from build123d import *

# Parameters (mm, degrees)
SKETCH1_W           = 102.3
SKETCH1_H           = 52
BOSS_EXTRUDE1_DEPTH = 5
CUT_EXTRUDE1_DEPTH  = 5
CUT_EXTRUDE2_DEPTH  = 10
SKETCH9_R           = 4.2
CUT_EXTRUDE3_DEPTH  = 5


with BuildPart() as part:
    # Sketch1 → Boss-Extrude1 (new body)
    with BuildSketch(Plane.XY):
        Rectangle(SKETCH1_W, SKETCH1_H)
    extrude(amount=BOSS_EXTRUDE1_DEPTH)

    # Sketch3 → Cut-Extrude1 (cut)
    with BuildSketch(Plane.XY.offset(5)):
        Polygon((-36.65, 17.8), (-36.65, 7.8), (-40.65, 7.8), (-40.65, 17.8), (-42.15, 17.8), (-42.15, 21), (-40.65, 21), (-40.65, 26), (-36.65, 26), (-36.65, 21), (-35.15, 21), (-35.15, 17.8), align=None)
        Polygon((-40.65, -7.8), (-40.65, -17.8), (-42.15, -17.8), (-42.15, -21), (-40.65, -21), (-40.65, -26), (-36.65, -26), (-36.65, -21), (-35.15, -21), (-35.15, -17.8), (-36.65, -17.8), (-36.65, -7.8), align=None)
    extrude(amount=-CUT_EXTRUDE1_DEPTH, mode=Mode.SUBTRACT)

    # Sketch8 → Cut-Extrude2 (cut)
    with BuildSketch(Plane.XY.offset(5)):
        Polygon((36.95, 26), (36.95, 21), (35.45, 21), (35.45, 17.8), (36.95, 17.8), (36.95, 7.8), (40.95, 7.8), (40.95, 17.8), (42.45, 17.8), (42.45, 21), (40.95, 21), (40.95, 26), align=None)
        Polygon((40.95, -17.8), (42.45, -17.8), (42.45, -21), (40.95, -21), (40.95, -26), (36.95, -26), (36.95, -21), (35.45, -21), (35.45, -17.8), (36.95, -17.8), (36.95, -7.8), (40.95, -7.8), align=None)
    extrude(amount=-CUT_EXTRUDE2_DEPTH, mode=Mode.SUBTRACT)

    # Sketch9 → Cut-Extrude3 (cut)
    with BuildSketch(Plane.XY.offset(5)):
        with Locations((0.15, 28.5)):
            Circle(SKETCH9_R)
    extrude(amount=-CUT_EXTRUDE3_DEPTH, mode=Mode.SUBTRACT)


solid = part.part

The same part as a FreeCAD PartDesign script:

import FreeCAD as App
import Part
import Sketcher

V = App.Vector


def add_polygon(sketch, points):
    """Adds a closed chain of lines whose ends are joined by coincident constraints."""
    first, n = sketch.GeometryCount, len(points)
    for a, b in zip(points, points[1:] + points[:1]):
        sketch.addGeometry(Part.LineSegment(App.Vector(*a, 0), App.Vector(*b, 0)), False)
    for i in range(n):
        sketch.addConstraint(Sketcher.Constraint("Coincident", first + i, 2, first + (i + 1) % n, 1))

doc = App.newDocument("Part")
body = doc.addObject("PartDesign::Body", "Body")

# Sketch on XY plane
sketch1 = body.newObject("Sketcher::SketchObject", "Sketch")
sketch1.AttachmentSupport = (doc.getObject("XY_Plane"), [""])
sketch1.MapMode = "FlatFace"
add_polygon(sketch1, [(-51, 26), (-51, -26), (51, -26), (51, 26)])  # lines 0-3
sketch1.addConstraint([
    Sketcher.Constraint("Vertical", 0),
    Sketcher.Constraint("Horizontal", 1),
    Sketcher.Constraint("Vertical", 2),
    Sketcher.Constraint("Horizontal", 3),
    Sketcher.Constraint("Symmetric", 0, 2, 2, 2, -1, 1),
    Sketcher.Constraint("DistanceY", 0, 2, 0, 1, 52.0),
    Sketcher.Constraint("DistanceX", 1, 1, 1, 2, 102.3),
])
pad1 = body.newObject("PartDesign::Pad", "Pad")
pad1.Profile = sketch1
pad1.Length = 5

# Sketch on XY plane
sketch2 = body.newObject("Sketcher::SketchObject", "Sketch001")
sketch2.AttachmentSupport = (doc.getObject("XY_Plane"), [""])
sketch2.MapMode = "FlatFace"
sketch2.AttachmentOffset = App.Placement(V(0, 0, 5), App.Rotation())
add_polygon(sketch2, [(-36.6, 7.8), (-36.6, 17.8), (-35.1, 17.8), (-35.1, 21), (-36.6, 21), (-36.6, 26), (-40.6, 26), (-40.6, 21), (-42.1, 21), (-42.1, 17.8), (-40.6, 17.8), (-40.6, 7.8)])  # lines 0-11
add_polygon(sketch2, [(-40.6, -7.8), (-40.6, -17.8), (-42.1, -17.8), (-42.1, -21), (-40.6, -21), (-40.6, -26), (-36.6, -26), (-36.6, -21), (-35.1, -21), (-35.1, -17.8), (-36.6, -17.8), (-36.6, -7.8)])  # lines 12-23
sketch2.addConstraint([
    Sketcher.Constraint("Vertical", 0),
    Sketcher.Constraint("Horizontal", 1),
    Sketcher.Constraint("Vertical", 2),
    Sketcher.Constraint("Horizontal", 3),
    Sketcher.Constraint("Vertical", 4),
    Sketcher.Constraint("Horizontal", 5),
    Sketcher.Constraint("Vertical", 6),
    Sketcher.Constraint("Horizontal", 7),
    Sketcher.Constraint("Vertical", 8),
    Sketcher.Constraint("Horizontal", 9),
    Sketcher.Constraint("Vertical", 10),
    Sketcher.Constraint("Horizontal", 11),
    Sketcher.Constraint("Vertical", 12),
    Sketcher.Constraint("Horizontal", 13),
    Sketcher.Constraint("Vertical", 14),
    Sketcher.Constraint("Horizontal", 15),
    Sketcher.Constraint("Vertical", 16),
    Sketcher.Constraint("Horizontal", 17),
    Sketcher.Constraint("Vertical", 18),
    Sketcher.Constraint("Horizontal", 19),
    Sketcher.Constraint("Vertical", 20),
    Sketcher.Constraint("Horizontal", 21),
    Sketcher.Constraint("Vertical", 22),
    Sketcher.Constraint("Horizontal", 23),
    Sketcher.Constraint("Symmetric", 9, 2, 12, 2, -1),
    Sketcher.Constraint("Symmetric", 7, 2, 14, 2, -1),
    Sketcher.Constraint("Symmetric", 5, 2, 16, 2, -1),
    Sketcher.Constraint("Symmetric", 3, 2, 18, 2, -1),
    Sketcher.Constraint("Symmetric", 1, 2, 20, 2, -1),
    Sketcher.Constraint("Symmetric", 11, 2, 22, 2, -1),
    Sketcher.Constraint("Horizontal", 3, 2, 6, 2),
    Sketcher.Constraint("Horizontal", 1, 2, 8, 2),
    Sketcher.Constraint("Vertical", 0, 2, 3, 2),
    Sketcher.Constraint("Vertical", 6, 2, 9, 2),
    Sketcher.Constraint("Equal", 3, 7),
    Sketcher.Constraint("DistanceX", 5, 2, 5, 1, 4.0),
    Sketcher.Constraint("DistanceY", 0, 1, 0, 2, 10.0),
    Sketcher.Constraint("DistanceY", 4, 1, 4, 2, 5.0),
    Sketcher.Constraint("DistanceX", 1, 1, 1, 2, 1.5),
    Sketcher.Constraint("DistanceY", 2, 1, 2, 2, 3.2),
    Sketcher.Constraint("DistanceY", -1, 1, 2, 2, 21.0),
    Sketcher.Constraint("DistanceX", 0, 2, -1, 1, 36.65),
])
pocket1 = body.newObject("PartDesign::Pocket", "Pocket")
pocket1.Profile = sketch2
pocket1.Length = 5

# Sketch on XY plane
sketch3 = body.newObject("Sketcher::SketchObject", "Sketch002")
sketch3.AttachmentSupport = (doc.getObject("XY_Plane"), [""])
sketch3.MapMode = "FlatFace"
sketch3.AttachmentOffset = App.Placement(V(0, 0, 5), App.Rotation())
add_polygon(sketch3, [(37, 26), (37, 21), (35.5, 21), (35.5, 17.8), (37, 17.8), (37, 7.8), (41, 7.8), (41, 17.8), (42.5, 17.8), (42.5, 21), (41, 21), (41, 26)])  # lines 0-11
add_polygon(sketch3, [(42.5, -17.8), (41, -17.8), (41, -7.8), (37, -7.8), (37, -17.8), (35.5, -17.8), (35.5, -21), (37, -21), (37, -26), (41, -26), (41, -21), (42.5, -21)])  # lines 12-23
sketch3.addConstraint([
    Sketcher.Constraint("Vertical", 0),
    Sketcher.Constraint("Horizontal", 1),
    Sketcher.Constraint("Vertical", 2),
    Sketcher.Constraint("Horizontal", 3),
    Sketcher.Constraint("Vertical", 4),
    Sketcher.Constraint("Horizontal", 5),
    Sketcher.Constraint("Vertical", 6),
    Sketcher.Constraint("Horizontal", 7),
    Sketcher.Constraint("Vertical", 8),
    Sketcher.Constraint("Horizontal", 9),
    Sketcher.Constraint("Vertical", 10),
    Sketcher.Constraint("Horizontal", 11),
    Sketcher.Constraint("Horizontal", 12),
    Sketcher.Constraint("Vertical", 13),
    Sketcher.Constraint("Horizontal", 14),
    Sketcher.Constraint("Vertical", 15),
    Sketcher.Constraint("Horizontal", 16),
    Sketcher.Constraint("Vertical", 17),
    Sketcher.Constraint("Horizontal", 18),
    Sketcher.Constraint("Vertical", 19),
    Sketcher.Constraint("Horizontal", 20),
    Sketcher.Constraint("Vertical", 21),
    Sketcher.Constraint("Horizontal", 22),
    Sketcher.Constraint("Vertical", 23),
    Sketcher.Constraint("Symmetric", 6, 2, 12, 2, -1),
    Sketcher.Constraint("Symmetric", 4, 2, 14, 2, -1),
    Sketcher.Constraint("Symmetric", 2, 2, 16, 2, -1),
    Sketcher.Constraint("Symmetric", 0, 2, 18, 2, -1),
    Sketcher.Constraint("Symmetric", 10, 2, 20, 2, -1),
    Sketcher.Constraint("Symmetric", 8, 2, 22, 2, -1),
    Sketcher.Constraint("Horizontal", 3, 2, 6, 2),
    Sketcher.Constraint("Horizontal", 1, 2, 8, 2),
    Sketcher.Constraint("Vertical", 0, 2, 3, 2),
    Sketcher.Constraint("Vertical", 6, 2, 9, 2),
    Sketcher.Constraint("Equal", 3, 7),
    Sketcher.Constraint("DistanceX", 5, 1, 5, 2, 4.0),
    Sketcher.Constraint("DistanceY", 0, 2, 0, 1, 5.0),
    Sketcher.Constraint("DistanceY", 4, 2, 4, 1, 10.0),
    Sketcher.Constraint("DistanceX", 1, 2, 1, 1, 1.5),
    Sketcher.Constraint("DistanceY", 2, 2, 2, 1, 3.2),
    Sketcher.Constraint("DistanceY", -1, 1, 0, 2, 21.0),
    Sketcher.Constraint("DistanceX", -1, 1, 0, 2, 36.95),
])
pocket2 = body.newObject("PartDesign::Pocket", "Pocket001")
pocket2.Profile = sketch3
pocket2.Length = 10

# Sketch on XY plane
sketch4 = body.newObject("Sketcher::SketchObject", "Sketch003")
sketch4.AttachmentSupport = (doc.getObject("XY_Plane"), [""])
sketch4.MapMode = "FlatFace"
sketch4.AttachmentOffset = App.Placement(V(0, 0, 5), App.Rotation())
sketch4.addGeometry(Part.Circle(V(0.1, 28.5, 0), V(0, 0, 1), 4.2), False)
sketch4.addConstraint([
    Sketcher.Constraint("Diameter", 0, 8.4),
    Sketcher.Constraint("DistanceY", -1, 1, 0, 3, 28.5),
    Sketcher.Constraint("DistanceX", -1, 1, 0, 3, 0.15),
])
pocket3 = body.newObject("PartDesign::Pocket", "Pocket002")
pocket3.Profile = sketch4
pocket3.Length = 5

doc.recompute()
